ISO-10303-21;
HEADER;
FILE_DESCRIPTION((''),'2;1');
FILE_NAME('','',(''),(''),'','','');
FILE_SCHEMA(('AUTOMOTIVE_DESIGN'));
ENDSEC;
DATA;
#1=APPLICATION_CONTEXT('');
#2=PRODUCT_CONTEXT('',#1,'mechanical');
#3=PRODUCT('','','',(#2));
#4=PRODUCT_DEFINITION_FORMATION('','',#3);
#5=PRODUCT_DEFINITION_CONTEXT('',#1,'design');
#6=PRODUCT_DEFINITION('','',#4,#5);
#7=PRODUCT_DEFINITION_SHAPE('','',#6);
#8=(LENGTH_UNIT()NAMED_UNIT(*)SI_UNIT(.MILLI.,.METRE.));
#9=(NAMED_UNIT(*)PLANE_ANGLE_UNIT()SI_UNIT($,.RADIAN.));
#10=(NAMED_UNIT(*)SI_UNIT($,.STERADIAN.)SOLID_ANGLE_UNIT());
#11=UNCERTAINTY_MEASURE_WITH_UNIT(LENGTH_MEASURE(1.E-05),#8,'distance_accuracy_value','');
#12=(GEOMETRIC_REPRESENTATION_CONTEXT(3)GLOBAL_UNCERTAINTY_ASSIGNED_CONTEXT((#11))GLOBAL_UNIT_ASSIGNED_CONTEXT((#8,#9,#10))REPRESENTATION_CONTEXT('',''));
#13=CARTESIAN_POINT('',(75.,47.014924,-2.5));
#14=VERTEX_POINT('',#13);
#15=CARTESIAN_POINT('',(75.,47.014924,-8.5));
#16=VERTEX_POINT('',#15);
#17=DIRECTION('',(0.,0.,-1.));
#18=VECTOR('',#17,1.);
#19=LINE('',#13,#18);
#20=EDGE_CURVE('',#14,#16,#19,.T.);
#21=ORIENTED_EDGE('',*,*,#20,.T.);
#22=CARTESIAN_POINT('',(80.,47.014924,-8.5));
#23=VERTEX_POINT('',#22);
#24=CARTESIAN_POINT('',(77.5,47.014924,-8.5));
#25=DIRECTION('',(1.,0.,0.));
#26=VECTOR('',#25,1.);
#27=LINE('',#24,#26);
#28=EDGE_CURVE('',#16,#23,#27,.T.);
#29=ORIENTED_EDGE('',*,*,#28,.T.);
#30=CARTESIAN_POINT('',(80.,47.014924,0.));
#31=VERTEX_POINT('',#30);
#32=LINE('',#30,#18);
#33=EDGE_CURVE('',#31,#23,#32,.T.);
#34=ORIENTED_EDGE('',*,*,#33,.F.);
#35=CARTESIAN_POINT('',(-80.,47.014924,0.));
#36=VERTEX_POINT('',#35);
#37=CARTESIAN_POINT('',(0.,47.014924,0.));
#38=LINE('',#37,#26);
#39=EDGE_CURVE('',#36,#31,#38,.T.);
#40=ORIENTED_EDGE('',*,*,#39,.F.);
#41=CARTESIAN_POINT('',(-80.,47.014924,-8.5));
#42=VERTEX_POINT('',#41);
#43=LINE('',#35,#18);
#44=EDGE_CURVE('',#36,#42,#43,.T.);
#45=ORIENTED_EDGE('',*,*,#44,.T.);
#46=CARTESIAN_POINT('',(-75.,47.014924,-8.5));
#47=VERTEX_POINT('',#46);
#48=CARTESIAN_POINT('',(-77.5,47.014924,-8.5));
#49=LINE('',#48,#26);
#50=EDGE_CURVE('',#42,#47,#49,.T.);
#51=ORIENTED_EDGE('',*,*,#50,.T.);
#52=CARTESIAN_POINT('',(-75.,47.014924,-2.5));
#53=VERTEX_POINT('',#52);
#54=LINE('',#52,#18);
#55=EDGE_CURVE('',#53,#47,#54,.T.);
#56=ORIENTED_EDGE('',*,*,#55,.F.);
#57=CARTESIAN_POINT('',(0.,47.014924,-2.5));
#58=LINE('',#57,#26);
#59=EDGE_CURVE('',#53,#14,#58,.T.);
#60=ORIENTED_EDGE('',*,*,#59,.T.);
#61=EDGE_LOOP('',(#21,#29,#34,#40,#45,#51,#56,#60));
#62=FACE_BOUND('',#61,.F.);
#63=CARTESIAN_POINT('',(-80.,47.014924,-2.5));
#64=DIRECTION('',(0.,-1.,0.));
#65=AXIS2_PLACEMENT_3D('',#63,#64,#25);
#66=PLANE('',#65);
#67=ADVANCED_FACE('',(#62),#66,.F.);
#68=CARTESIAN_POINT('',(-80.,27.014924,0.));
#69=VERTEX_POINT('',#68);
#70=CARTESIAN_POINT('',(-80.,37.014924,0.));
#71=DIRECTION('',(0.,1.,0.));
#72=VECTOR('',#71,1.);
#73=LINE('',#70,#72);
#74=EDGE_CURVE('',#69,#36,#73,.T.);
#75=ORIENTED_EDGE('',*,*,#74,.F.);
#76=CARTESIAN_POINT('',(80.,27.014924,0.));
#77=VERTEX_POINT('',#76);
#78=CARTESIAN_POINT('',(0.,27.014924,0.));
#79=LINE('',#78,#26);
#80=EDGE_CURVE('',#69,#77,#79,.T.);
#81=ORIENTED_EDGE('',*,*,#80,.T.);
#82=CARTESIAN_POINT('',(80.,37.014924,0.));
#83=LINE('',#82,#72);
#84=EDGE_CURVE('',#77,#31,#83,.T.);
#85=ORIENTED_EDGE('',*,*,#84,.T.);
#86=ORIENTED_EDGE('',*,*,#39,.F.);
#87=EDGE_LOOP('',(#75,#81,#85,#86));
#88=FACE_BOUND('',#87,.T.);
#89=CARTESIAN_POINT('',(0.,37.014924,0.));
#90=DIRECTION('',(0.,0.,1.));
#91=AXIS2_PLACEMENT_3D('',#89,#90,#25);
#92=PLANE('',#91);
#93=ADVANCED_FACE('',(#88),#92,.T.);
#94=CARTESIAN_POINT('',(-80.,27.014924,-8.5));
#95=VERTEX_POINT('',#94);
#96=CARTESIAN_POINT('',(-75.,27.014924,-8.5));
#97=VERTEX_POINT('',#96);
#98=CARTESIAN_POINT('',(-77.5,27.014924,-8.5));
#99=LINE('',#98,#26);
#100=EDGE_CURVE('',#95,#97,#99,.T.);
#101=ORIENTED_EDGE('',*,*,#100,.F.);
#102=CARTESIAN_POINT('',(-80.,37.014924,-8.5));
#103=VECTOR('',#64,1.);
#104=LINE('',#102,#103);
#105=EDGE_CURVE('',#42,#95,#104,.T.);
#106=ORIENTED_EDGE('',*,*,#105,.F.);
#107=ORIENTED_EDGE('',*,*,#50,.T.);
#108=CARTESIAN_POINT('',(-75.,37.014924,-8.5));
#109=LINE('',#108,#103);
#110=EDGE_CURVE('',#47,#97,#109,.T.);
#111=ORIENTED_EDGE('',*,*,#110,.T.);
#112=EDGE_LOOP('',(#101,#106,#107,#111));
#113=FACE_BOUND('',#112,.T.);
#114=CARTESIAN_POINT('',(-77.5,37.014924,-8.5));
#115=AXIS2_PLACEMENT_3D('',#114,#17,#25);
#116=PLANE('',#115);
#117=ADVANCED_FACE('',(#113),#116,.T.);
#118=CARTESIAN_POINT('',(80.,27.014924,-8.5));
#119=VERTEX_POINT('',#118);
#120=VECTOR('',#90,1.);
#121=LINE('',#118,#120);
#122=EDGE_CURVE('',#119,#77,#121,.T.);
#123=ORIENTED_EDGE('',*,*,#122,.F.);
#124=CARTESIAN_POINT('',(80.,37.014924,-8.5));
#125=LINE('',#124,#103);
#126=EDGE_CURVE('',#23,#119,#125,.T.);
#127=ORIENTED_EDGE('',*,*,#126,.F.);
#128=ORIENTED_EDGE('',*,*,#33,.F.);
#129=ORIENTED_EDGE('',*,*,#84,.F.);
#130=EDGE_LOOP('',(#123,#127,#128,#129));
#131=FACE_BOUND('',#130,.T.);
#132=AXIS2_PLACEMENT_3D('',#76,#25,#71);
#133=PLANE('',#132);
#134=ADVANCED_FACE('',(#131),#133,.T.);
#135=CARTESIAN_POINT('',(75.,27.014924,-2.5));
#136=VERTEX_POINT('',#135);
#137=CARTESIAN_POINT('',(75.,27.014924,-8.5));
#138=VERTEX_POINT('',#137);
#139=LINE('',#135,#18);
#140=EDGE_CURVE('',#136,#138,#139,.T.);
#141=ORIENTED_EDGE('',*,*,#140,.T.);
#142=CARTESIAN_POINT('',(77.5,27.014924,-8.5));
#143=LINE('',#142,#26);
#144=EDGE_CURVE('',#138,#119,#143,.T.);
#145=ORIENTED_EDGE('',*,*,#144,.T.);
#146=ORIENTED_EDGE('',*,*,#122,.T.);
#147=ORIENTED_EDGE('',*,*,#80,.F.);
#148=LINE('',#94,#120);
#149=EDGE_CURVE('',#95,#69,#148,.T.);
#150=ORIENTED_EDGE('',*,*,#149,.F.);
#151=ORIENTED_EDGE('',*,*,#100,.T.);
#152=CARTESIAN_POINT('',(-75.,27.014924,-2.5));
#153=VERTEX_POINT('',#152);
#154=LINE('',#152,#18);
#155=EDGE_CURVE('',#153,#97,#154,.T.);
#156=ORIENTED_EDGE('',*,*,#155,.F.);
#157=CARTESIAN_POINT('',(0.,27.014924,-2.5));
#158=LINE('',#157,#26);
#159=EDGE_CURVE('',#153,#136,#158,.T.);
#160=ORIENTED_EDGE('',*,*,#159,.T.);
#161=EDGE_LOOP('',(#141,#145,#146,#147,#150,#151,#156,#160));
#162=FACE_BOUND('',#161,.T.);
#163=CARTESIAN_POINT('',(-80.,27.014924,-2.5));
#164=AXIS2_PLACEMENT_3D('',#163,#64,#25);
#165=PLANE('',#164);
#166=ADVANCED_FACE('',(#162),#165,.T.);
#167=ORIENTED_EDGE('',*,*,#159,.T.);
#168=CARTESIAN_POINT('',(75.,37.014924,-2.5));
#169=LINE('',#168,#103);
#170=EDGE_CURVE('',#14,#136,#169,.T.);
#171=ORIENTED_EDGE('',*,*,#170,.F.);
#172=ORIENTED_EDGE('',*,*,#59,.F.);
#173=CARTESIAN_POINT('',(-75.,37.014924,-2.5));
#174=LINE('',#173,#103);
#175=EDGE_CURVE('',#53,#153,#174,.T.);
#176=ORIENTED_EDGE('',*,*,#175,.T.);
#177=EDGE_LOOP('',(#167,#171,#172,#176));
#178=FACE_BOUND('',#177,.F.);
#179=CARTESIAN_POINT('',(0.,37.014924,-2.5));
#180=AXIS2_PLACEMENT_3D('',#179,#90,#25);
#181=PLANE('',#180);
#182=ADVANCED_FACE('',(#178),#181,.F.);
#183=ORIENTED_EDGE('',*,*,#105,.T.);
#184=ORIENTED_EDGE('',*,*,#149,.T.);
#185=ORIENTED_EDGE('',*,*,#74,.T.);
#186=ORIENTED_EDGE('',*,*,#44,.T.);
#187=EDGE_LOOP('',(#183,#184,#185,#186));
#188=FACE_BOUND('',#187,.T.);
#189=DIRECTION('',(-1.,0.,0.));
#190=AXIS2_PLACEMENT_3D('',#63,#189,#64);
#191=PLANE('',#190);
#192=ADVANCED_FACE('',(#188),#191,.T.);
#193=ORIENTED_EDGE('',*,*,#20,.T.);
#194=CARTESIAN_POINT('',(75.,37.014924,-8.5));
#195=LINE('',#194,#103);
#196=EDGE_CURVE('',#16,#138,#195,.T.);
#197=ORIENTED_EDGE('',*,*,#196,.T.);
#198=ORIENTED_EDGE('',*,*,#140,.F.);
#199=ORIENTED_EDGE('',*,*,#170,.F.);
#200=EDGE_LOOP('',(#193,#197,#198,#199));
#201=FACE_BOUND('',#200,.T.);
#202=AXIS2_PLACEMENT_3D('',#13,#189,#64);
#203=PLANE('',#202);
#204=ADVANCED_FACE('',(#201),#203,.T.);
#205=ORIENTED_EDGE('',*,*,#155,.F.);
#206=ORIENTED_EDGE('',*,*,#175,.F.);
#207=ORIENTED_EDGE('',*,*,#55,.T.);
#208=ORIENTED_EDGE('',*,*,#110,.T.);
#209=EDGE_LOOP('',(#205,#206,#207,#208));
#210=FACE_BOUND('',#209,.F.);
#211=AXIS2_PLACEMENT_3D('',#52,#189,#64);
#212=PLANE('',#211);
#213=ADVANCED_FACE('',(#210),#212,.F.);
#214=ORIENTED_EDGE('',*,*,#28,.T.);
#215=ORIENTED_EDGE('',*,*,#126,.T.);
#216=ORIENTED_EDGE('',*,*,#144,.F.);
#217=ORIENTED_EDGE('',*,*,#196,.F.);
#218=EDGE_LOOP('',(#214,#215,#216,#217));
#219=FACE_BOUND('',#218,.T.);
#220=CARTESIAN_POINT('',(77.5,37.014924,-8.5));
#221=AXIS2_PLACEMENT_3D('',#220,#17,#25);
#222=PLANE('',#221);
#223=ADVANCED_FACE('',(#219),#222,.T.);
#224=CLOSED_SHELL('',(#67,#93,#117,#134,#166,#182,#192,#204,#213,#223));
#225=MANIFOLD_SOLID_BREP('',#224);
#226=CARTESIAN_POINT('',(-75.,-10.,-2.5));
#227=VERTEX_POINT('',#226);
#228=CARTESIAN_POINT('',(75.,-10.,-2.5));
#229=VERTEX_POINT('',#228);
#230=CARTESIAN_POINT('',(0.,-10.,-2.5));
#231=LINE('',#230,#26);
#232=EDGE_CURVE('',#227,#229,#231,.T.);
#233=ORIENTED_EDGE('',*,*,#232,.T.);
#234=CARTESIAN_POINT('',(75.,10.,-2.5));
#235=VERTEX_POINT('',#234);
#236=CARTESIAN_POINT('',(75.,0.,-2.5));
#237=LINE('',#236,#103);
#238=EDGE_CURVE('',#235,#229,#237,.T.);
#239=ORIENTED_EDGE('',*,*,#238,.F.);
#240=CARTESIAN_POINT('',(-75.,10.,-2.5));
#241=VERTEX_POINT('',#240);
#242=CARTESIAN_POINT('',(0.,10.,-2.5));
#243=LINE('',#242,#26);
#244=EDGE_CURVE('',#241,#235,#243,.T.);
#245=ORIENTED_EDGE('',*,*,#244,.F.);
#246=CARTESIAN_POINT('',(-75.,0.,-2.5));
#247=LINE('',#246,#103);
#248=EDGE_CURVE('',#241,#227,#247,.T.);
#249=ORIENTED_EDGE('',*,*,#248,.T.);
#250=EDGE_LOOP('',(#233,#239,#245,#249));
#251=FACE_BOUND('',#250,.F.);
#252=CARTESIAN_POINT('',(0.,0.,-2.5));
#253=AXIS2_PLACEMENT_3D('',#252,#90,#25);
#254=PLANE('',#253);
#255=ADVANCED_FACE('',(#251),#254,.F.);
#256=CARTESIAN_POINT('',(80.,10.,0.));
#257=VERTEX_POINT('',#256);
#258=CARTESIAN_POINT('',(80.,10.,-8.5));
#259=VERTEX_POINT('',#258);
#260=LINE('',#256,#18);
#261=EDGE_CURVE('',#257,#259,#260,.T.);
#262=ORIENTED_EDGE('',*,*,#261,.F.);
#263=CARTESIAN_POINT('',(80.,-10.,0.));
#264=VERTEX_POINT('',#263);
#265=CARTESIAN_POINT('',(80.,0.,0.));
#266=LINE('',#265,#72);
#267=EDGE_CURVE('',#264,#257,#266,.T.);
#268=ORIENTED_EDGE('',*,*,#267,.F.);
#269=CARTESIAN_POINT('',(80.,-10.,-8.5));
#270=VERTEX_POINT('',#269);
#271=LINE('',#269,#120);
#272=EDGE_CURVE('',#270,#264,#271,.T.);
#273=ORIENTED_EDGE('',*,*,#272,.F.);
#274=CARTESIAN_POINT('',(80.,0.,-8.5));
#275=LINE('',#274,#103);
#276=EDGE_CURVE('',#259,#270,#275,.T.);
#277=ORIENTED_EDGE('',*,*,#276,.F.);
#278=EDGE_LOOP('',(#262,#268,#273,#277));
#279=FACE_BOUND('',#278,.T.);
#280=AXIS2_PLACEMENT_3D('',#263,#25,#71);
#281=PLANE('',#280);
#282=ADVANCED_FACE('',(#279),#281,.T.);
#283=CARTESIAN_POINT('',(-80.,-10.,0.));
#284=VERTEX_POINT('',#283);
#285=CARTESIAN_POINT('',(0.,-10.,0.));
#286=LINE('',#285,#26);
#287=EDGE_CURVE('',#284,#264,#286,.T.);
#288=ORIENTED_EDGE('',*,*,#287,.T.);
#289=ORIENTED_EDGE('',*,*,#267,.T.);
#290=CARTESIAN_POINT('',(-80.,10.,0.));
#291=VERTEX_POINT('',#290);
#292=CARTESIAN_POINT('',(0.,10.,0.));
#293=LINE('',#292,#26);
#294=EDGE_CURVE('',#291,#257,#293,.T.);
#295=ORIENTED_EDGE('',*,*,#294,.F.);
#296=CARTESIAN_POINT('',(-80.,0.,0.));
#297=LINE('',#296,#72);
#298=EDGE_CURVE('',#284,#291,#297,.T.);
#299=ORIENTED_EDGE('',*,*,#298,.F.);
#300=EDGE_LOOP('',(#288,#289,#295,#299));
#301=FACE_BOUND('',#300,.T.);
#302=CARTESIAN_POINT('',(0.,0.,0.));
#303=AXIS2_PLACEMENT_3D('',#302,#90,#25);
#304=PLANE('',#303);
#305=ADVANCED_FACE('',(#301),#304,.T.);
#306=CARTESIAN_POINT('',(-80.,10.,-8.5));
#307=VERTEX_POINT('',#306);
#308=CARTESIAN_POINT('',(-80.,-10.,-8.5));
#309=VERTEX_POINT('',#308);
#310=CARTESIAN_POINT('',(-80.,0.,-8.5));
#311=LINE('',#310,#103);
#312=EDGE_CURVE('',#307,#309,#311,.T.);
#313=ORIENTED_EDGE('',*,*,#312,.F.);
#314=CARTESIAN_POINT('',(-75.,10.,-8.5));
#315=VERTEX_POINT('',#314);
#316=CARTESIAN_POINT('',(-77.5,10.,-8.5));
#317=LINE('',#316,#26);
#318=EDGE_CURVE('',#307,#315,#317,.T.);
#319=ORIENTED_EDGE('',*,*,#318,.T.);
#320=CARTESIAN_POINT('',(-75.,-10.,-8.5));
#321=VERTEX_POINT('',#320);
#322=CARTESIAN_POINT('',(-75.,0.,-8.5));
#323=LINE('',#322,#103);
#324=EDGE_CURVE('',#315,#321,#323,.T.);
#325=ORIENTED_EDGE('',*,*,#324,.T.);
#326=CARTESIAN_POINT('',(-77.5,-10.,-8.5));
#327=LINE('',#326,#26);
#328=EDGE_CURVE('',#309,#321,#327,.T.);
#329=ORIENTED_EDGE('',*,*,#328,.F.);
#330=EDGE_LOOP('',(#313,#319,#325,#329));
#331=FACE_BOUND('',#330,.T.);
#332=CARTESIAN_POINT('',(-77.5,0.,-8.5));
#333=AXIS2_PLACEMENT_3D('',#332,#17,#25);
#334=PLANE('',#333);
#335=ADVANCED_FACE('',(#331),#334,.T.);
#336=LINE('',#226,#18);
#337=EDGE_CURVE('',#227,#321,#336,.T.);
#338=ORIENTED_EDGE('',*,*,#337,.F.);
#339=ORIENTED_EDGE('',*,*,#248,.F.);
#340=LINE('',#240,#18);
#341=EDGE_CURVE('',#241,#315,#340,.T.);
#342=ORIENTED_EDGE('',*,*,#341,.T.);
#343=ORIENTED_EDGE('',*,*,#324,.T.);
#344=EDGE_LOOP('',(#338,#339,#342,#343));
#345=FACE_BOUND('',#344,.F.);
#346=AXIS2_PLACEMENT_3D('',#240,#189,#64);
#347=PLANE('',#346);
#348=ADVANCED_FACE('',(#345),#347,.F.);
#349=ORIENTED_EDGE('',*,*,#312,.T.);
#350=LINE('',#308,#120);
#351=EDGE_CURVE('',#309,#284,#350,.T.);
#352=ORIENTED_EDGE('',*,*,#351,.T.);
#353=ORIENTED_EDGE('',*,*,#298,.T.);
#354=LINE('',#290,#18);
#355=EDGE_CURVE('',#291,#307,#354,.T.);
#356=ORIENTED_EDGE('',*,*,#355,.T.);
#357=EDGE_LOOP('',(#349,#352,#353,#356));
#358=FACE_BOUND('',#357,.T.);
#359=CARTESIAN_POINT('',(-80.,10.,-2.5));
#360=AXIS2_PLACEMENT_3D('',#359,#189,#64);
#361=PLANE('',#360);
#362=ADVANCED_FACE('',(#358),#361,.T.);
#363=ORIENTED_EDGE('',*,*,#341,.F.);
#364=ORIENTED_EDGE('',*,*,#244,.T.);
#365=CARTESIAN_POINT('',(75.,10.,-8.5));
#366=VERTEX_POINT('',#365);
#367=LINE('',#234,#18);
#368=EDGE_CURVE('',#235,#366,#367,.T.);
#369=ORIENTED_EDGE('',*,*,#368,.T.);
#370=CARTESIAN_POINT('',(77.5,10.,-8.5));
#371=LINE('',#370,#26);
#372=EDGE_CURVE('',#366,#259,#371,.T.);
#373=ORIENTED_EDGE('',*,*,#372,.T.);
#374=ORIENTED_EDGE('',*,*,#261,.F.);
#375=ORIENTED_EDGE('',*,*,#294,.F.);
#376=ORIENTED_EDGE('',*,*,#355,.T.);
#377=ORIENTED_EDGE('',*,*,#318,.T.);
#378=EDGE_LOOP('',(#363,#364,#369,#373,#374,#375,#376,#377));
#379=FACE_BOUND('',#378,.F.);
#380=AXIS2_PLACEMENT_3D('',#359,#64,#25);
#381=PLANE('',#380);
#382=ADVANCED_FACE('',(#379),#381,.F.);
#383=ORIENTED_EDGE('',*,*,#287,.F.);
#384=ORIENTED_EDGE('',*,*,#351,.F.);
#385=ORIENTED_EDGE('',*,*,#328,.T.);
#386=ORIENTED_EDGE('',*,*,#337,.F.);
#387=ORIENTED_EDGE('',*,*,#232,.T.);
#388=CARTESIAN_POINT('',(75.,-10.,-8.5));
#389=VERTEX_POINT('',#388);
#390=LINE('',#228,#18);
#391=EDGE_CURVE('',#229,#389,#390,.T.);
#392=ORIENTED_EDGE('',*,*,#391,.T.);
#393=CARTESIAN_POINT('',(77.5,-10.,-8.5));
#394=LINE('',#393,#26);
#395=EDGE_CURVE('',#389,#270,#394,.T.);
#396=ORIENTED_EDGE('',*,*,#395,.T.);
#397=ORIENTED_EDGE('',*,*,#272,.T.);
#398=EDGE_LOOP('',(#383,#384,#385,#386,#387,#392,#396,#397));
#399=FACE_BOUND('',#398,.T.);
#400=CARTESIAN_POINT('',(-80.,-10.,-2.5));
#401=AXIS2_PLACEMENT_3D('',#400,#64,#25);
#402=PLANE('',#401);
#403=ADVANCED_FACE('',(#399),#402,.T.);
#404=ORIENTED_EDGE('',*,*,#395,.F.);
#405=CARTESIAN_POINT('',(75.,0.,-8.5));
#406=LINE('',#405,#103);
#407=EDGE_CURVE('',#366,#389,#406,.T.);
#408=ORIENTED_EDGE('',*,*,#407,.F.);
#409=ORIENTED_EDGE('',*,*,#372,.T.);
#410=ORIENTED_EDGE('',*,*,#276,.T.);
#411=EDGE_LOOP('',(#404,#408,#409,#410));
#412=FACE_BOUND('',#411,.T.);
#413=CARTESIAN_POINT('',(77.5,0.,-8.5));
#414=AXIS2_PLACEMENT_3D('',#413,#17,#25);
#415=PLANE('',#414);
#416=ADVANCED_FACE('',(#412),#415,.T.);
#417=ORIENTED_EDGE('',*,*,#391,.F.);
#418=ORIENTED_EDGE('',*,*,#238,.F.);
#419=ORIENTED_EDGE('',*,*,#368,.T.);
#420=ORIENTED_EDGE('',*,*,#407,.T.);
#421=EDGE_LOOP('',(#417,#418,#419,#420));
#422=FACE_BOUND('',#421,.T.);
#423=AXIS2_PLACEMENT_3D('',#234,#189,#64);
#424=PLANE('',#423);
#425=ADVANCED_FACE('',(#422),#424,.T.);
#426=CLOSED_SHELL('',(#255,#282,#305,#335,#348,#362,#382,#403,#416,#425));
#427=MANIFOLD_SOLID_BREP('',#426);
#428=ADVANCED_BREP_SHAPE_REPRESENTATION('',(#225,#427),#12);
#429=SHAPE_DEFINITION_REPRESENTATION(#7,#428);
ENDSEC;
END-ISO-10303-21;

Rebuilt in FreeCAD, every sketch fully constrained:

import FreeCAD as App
import Part
import Sketcher
from FreeCAD import Vector
Q = App.Units.Quantity

doc = App.newDocument("Part")
body = doc.addObject("PartDesign::Body", "Body")

# Sketch on XY plane
sketch1 = body.newObject("Sketcher::SketchObject", "Sketch")
sketch1.AttachmentSupport = (doc.getObject("XY_Plane"), [""])
sketch1.MapMode = "FlatFace"
sketch1.addGeometry([
    Part.LineSegment(Vector(-80, 10, 0), Vector(-80, -10, 0)),
    Part.LineSegment(Vector(-80, -10, 0), Vector(80, -10, 0)),
    Part.LineSegment(Vector(80, -10, 0), Vector(80, 10, 0)),
    Part.LineSegment(Vector(80, 10, 0), Vector(-80, 10, 0)),
], False)
sketch1.addConstraint([
    Sketcher.Constraint("Coincident", 0, 2, 1, 1),
    Sketcher.Constraint("Coincident", 1, 2, 2, 1),
    Sketcher.Constraint("Coincident", 2, 2, 3, 1),
    Sketcher.Constraint("Coincident", 3, 2, 0, 1),
    Sketcher.Constraint("Vertical", 0),
    Sketcher.Constraint("Horizontal", 1),
    Sketcher.Constraint("Vertical", 2),
    Sketcher.Constraint("Horizontal", 3),
    Sketcher.Constraint("Symmetric", 0, 2, 2, 2, -1, 1),
    Sketcher.Constraint("DistanceX", 1, 1, 1, 2, Q("160 mm")),
    Sketcher.Constraint("DistanceY", 0, 2, 0, 1, Q("20 mm")),
])
pad1 = body.newObject("PartDesign::Pad", "Pad")
pad1.Profile = sketch1
pad1.Length = 2.5
pad1.Reversed = True

# Sketch on XY plane
sketch2 = body.newObject("Sketcher::SketchObject", "Sketch001")
sketch2.AttachmentSupport = (doc.getObject("XY_Plane"), [""])
sketch2.MapMode = "FlatFace"
sketch2.AttachmentOffset = App.Placement(Vector(0, 0, -2.5), App.Rotation())
sketch2.addGeometry([
    Part.LineSegment(Vector(-80, -10, 0), Vector(-80, 10, 0)),  # 0
    Part.LineSegment(Vector(-80, 10, 0), Vector(-75, 10, 0)),  # 1
    Part.LineSegment(Vector(-75, 10, 0), Vector(-75, -10, 0)),  # 2
    Part.LineSegment(Vector(-75, -10, 0), Vector(-80, -10, 0)),  # 3
    Part.LineSegment(Vector(75, -10, 0), Vector(75, 10, 0)),  # 4
    Part.LineSegment(Vector(75, 10, 0), Vector(80, 10, 0)),  # 5
    Part.LineSegment(Vector(80, 10, 0), Vector(80, -10, 0)),  # 6
    Part.LineSegment(Vector(80, -10, 0), Vector(75, -10, 0)),  # 7
], False)
sketch2.addConstraint([
    Sketcher.Constraint("Coincident", 0, 2, 1, 1),
    Sketcher.Constraint("Coincident", 1, 2, 2, 1),
    Sketcher.Constraint("Coincident", 2, 2, 3, 1),
    Sketcher.Constraint("Coincident", 3, 2, 0, 1),
    Sketcher.Constraint("Coincident", 4, 2, 5, 1),
    Sketcher.Constraint("Coincident", 5, 2, 6, 1),
    Sketcher.Constraint("Coincident", 6, 2, 7, 1),
    Sketcher.Constraint("Coincident", 7, 2, 4, 1),
    Sketcher.Constraint("Vertical", 0),
    Sketcher.Constraint("Horizontal", 1),
    Sketcher.Constraint("Vertical", 2),
    Sketcher.Constraint("Horizontal", 3),
    Sketcher.Constraint("Vertical", 4),
    Sketcher.Constraint("Horizontal", 5),
    Sketcher.Constraint("Vertical", 6),
    Sketcher.Constraint("Horizontal", 7),
    Sketcher.Constraint("Symmetric", 2, 2, 4, 2, -1, 1),
    Sketcher.Constraint("Symmetric", 0, 2, 6, 2, -1, 1),
    Sketcher.Constraint("Horizontal", 1, 2, 4, 2),
    Sketcher.Constraint("DistanceX", 1, 1, 1, 2, Q("5 mm")),
    Sketcher.Constraint("DistanceY", 0, 1, 0, 2, Q("20 mm")),
    Sketcher.Constraint("DistanceX", 0, 2, -1, 1, Q("80 mm")),
])
pad2 = body.newObject("PartDesign::Pad", "Pad001")
pad2.Profile = sketch2
pad2.Length = 6
pad2.Reversed = True
body2 = doc.addObject("PartDesign::Body", "Body001")

# Sketch on XY plane
sketch3 = body2.newObject("Sketcher::SketchObject", "Sketch002")
sketch3.AttachmentSupport = (doc.getObject("XY_Plane001"), [""])
sketch3.MapMode = "FlatFace"
sketch3.addGeometry([
    Part.LineSegment(Vector(-80, 47.014924, 0), Vector(-80, 27.014924, 0)),
    Part.LineSegment(Vector(-80, 27.014924, 0), Vector(80, 27.014924, 0)),
    Part.LineSegment(Vector(80, 27.014924, 0), Vector(80, 47.014924, 0)),
    Part.LineSegment(Vector(80, 47.014924, 0), Vector(-80, 47.014924, 0)),
], False)
sketch3.addConstraint([
    Sketcher.Constraint("Coincident", 0, 2, 1, 1),
    Sketcher.Constraint("Coincident", 1, 2, 2, 1),
    Sketcher.Constraint("Coincident", 2, 2, 3, 1),
    Sketcher.Constraint("Coincident", 3, 2, 0, 1),
    Sketcher.Constraint("Vertical", 0),
    Sketcher.Constraint("Horizontal", 1),
    Sketcher.Constraint("Vertical", 2),
    Sketcher.Constraint("Horizontal", 3),
    Sketcher.Constraint("DistanceX", 1, 1, 1, 2, Q("160 mm")),
    Sketcher.Constraint("DistanceY", 0, 2, 0, 1, Q("20 mm")),
    Sketcher.Constraint("DistanceX", 0, 2, -1, 1, Q("80 mm")),
    Sketcher.Constraint("DistanceY", -1, 1, 0, 2, Q("27.014924 mm")),
])
pad3 = body2.newObject("PartDesign::Pad", "Pad002")
pad3.Profile = sketch3
pad3.Length = 2.5
pad3.Reversed = True

# Sketch on XY plane
sketch4 = body2.newObject("Sketcher::SketchObject", "Sketch003")
sketch4.AttachmentSupport = (doc.getObject("XY_Plane001"), [""])
sketch4.MapMode = "FlatFace"
sketch4.AttachmentOffset = App.Placement(Vector(0, 0, -2.5), App.Rotation())
sketch4.addGeometry([
    Part.LineSegment(Vector(-80, 27.014924, 0), Vector(-80, 47.014924, 0)),  # 0
    Part.LineSegment(Vector(-80, 47.014924, 0), Vector(-75, 47.014924, 0)),  # 1
    Part.LineSegment(Vector(-75, 47.014924, 0), Vector(-75, 27.014924, 0)),  # 2
    Part.LineSegment(Vector(-75, 27.014924, 0), Vector(-80, 27.014924, 0)),  # 3
    Part.LineSegment(Vector(75, 27.014924, 0), Vector(75, 47.014924, 0)),  # 4
    Part.LineSegment(Vector(75, 47.014924, 0), Vector(80, 47.014924, 0)),  # 5
    Part.LineSegment(Vector(80, 47.014924, 0), Vector(80, 27.014924, 0)),  # 6
    Part.LineSegment(Vector(80, 27.014924, 0), Vector(75, 27.014924, 0)),  # 7
], False)
sketch4.addConstraint([
    Sketcher.Constraint("Coincident", 0, 2, 1, 1),
    Sketcher.Constraint("Coincident", 1, 2, 2, 1),
    Sketcher.Constraint("Coincident", 2, 2, 3, 1),
    Sketcher.Constraint("Coincident", 3, 2, 0, 1),
    Sketcher.Constraint("Coincident", 4, 2, 5, 1),
    Sketcher.Constraint("Coincident", 5, 2, 6, 1),
    Sketcher.Constraint("Coincident", 6, 2, 7, 1),
    Sketcher.Constraint("Coincident", 7, 2, 4, 1),
    Sketcher.Constraint("Vertical", 0),
    Sketcher.Constraint("Horizontal", 1),
    Sketcher.Constraint("Vertical", 2),
    Sketcher.Constraint("Horizontal", 3),
    Sketcher.Constraint("Vertical", 4),
    Sketcher.Constraint("Horizontal", 5),
    Sketcher.Constraint("Vertical", 6),
    Sketcher.Constraint("Horizontal", 7),
    Sketcher.Constraint("Symmetric", 1, 2, 4, 2, -2),
    Sketcher.Constraint("Symmetric", 3, 2, 6, 2, -2),
    Sketcher.Constraint("DistanceX", 1, 1, 1, 2, Q("5 mm")),
    Sketcher.Constraint("DistanceY", 0, 1, 0, 2, Q("20 mm")),
    Sketcher.Constraint("DistanceX", 0, 2, -1, 1, Q("80 mm")),
    Sketcher.Constraint("DistanceY", -1, 1, 0, 2, Q("47.014924 mm")),
])
pad4 = body2.newObject("PartDesign::Pad", "Pad003")
pad4.Profile = sketch4
pad4.Length = 6
pad4.Reversed = True

doc.recompute()
